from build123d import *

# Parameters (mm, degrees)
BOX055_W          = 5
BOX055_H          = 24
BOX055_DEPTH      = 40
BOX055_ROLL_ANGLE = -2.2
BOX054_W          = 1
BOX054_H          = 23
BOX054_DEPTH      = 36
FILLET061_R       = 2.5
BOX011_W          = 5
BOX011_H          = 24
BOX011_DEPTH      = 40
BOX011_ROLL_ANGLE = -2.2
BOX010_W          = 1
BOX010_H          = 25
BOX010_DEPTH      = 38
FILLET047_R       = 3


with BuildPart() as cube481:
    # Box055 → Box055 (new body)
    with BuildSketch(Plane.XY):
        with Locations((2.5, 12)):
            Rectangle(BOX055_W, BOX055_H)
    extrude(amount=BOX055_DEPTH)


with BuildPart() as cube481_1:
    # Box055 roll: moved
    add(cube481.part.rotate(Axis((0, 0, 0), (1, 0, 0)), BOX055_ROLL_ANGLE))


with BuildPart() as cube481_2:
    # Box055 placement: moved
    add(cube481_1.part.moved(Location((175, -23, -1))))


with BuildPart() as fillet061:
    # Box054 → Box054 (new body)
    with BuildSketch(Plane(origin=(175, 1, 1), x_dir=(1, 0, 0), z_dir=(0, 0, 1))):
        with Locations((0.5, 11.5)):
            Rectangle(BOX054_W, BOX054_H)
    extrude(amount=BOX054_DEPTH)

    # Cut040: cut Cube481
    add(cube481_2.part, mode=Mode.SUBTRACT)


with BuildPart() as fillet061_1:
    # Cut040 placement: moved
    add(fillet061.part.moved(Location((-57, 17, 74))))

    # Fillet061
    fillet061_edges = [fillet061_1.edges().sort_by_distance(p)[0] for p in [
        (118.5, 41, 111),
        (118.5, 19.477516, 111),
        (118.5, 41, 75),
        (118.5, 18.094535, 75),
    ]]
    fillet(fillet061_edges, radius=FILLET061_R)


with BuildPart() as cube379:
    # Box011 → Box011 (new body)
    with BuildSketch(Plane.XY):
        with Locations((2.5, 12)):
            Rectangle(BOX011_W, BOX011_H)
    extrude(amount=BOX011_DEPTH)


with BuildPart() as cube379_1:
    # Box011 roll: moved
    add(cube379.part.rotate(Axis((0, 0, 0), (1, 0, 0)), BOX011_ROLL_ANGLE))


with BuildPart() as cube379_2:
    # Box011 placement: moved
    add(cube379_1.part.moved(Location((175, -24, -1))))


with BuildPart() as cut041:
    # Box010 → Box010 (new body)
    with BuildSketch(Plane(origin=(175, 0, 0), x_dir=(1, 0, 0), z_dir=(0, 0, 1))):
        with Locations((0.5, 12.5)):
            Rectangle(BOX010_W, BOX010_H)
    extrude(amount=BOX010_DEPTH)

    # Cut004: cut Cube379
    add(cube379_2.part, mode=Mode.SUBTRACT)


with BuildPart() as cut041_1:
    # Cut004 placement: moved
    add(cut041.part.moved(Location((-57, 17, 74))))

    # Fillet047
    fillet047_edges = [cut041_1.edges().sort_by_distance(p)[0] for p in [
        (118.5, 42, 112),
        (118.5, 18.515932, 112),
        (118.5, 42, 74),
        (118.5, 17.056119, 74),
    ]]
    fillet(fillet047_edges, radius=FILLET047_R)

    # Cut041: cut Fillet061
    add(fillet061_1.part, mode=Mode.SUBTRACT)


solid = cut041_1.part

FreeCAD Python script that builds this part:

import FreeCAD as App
import Part
import Sketcher
Q = App.Units.Quantity


def edges_at(feature, points):
    """Names of the edges that pass closest to the given points."""
    edges = feature.Shape.Edges
    near = lambda p: min(range(len(edges)), key=lambda i: edges[i].distToShape(Part.Vertex(*p))[0])
    return sorted({f"Edge{near(p) + 1}" for p in points})


def add_polygon(sketch, points):
    """Adds a closed chain of lines whose ends are joined by coincident constraints."""
    first, n = sketch.GeometryCount, len(points)
    for a, b in zip(points, points[1:] + points[:1]):
        sketch.addGeometry(Part.LineSegment(App.Vector(*a, 0), App.Vector(*b, 0)), False)
    for i in range(n):
        sketch.addConstraint(Sketcher.Constraint("Coincident", first + i, 2, first + (i + 1) % n, 1))

doc = App.newDocument("Part")
body = doc.addObject("PartDesign::Body", "Body")

# Sketch on XY plane
sketch1 = doc.addObject("Sketcher::SketchObject", "Sketch")
body.addObject(sketch1)
sketch1.AttachmentSupport = (doc.XY_Plane, [""])
sketch1.MapMode = "FlatFace"
add_polygon(sketch1, [(0, 24), (0, 0), (5, 0), (5, 24)])  # lines 0-3
sketch1.addConstraint(Sketcher.Constraint("Vertical", 0))
sketch1.addConstraint(Sketcher.Constraint("Horizontal", 1))
sketch1.addConstraint(Sketcher.Constraint("Vertical", 2))
sketch1.addConstraint(Sketcher.Constraint("Horizontal", 3))
sketch1.addConstraint(Sketcher.Constraint("Coincident", 0, 2, -1, 1))
sketch1.addConstraint(Sketcher.Constraint("DistanceX", 1, 1, 1, 2, Q("5 mm")))
sketch1.addConstraint(Sketcher.Constraint("DistanceY", 0, 2, 0, 1, Q("24 mm")))
pad1 = doc.addObject("PartDesign::Pad", "Pad")
body.addObject(pad1)
pad1.Profile = sketch1
pad1.Length = 40
body2 = doc.addObject("PartDesign::Body", "Body001")
doc.recompute()

body.Placement = App.Placement(App.Vector(0, 0, 0), App.Rotation(App.Vector(1, 0, 0), 357.8))
boolean = doc.addObject("PartDesign::Boolean", "Boolean")
body2.addObject(boolean)
boolean.Type = "Fuse"
boolean.addObjects([body])
body3 = doc.addObject("PartDesign::Body", "Body002")
doc.recompute()

body2.Placement = App.Placement(App.Vector(175, -23, -1), App.Rotation(App.Vector(0, 0, 1), 0))
boolean2 = doc.addObject("PartDesign::Boolean", "Boolean001")
body3.addObject(boolean2)
boolean2.Type = "Fuse"
boolean2.addObjects([body2])
body4 = doc.addObject("PartDesign::Body", "Body003")

# Sketch on XY plane
sketch2 = doc.addObject("Sketcher::SketchObject", "Sketch001")
body4.addObject(sketch2)
sketch2.AttachmentSupport = (doc.getObject("XY_Plane003"), [""])
sketch2.MapMode = "FlatFace"
sketch2.AttachmentOffset = App.Placement(App.Vector(0, 0, 1), App.Rotation())
add_polygon(sketch2, [(175, 24), (175, 1), (176, 1), (176, 24)])  # lines 0-3
sketch2.addConstraint(Sketcher.Constraint("Vertical", 0))
sketch2.addConstraint(Sketcher.Constraint("Horizontal", 1))
sketch2.addConstraint(Sketcher.Constraint("Vertical", 2))
sketch2.addConstraint(Sketcher.Constraint("Horizontal", 3))
sketch2.addConstraint(Sketcher.Constraint("DistanceX", 1, 1, 1, 2, Q("1 mm")))
sketch2.addConstraint(Sketcher.Constraint("DistanceY", 0, 2, 0, 1, Q("23 mm")))
sketch2.addConstraint(Sketcher.Constraint("DistanceX", -1, 1, 0, 2, Q("175 mm")))
sketch2.addConstraint(Sketcher.Constraint("DistanceY", -1, 1, 0, 2, Q("1 mm")))
pad2 = doc.addObject("PartDesign::Pad", "Pad001")
body4.addObject(pad2)
pad2.Profile = sketch2
pad2.Length = 36
doc.recompute()

boolean3 = doc.addObject("PartDesign::Boolean", "Boolean002")
body4.addObject(boolean3)
boolean3.Type = "Cut"
boolean3.addObjects([body3])
body5 = doc.addObject("PartDesign::Body", "Body004")
doc.recompute()

body4.Placement = App.Placement(App.Vector(-57, 17, 74), App.Rotation(App.Vector(0, 0, 1), 0))
boolean4 = doc.addObject("PartDesign::Boolean", "Boolean003")
body5.addObject(boolean4)
boolean4.Type = "Fuse"
boolean4.addObjects([body4])
doc.recompute()

fillet = doc.addObject("PartDesign::Fillet", "Fillet")
body5.addObject(fillet)
fillet.Base = (boolean4, edges_at(boolean4, [
    (118.5, 41, 111),
    (118.5, 19.478, 111),
    (118.5, 41, 75),
    (118.5, 18.095, 75),
]))
fillet.Radius = 2.5
body6 = doc.addObject("PartDesign::Body", "Body005")

# Sketch on XY plane
sketch3 = doc.addObject("Sketcher::SketchObject", "Sketch002")
body6.addObject(sketch3)
sketch3.AttachmentSupport = (doc.getObject("XY_Plane005"), [""])
sketch3.MapMode = "FlatFace"
add_polygon(sketch3, [(0, 24), (0, 0), (5, 0), (5, 24)])  # lines 0-3
sketch3.addConstraint(Sketcher.Constraint("Vertical", 0))
sketch3.addConstraint(Sketcher.Constraint("Horizontal", 1))
sketch3.addConstraint(Sketcher.Constraint("Vertical", 2))
sketch3.addConstraint(Sketcher.Constraint("Horizontal", 3))
sketch3.addConstraint(Sketcher.Constraint("Coincident", 0, 2, -1, 1))
sketch3.addConstraint(Sketcher.Constraint("DistanceX", 1, 1, 1, 2, Q("5 mm")))
sketch3.addConstraint(Sketcher.Constraint("DistanceY", 0, 2, 0, 1, Q("24 mm")))
pad3 = doc.addObject("PartDesign::Pad", "Pad002")
body6.addObject(pad3)
pad3.Profile = sketch3
pad3.Length = 40
body7 = doc.addObject("PartDesign::Body", "Body006")
doc.recompute()

body6.Placement = App.Placement(App.Vector(0, 0, 0), App.Rotation(App.Vector(1, 0, 0), 357.8))
boolean5 = doc.addObject("PartDesign::Boolean", "Boolean004")
body7.addObject(boolean5)
boolean5.Type = "Fuse"
boolean5.addObjects([body6])
body8 = doc.addObject("PartDesign::Body", "Body007")
doc.recompute()

body7.Placement = App.Placement(App.Vector(175, -24, -1), App.Rotation(App.Vector(0, 0, 1), 0))
boolean6 = doc.addObject("PartDesign::Boolean", "Boolean005")
body8.addObject(boolean6)
boolean6.Type = "Fuse"
boolean6.addObjects([body7])
body9 = doc.addObject("PartDesign::Body", "Body008")

# Sketch on XY plane
sketch4 = doc.addObject("Sketcher::SketchObject", "Sketch003")
body9.addObject(sketch4)
sketch4.AttachmentSupport = (doc.getObject("XY_Plane008"), [""])
sketch4.MapMode = "FlatFace"
add_polygon(sketch4, [(175, 25), (175, 0), (176, 0), (176, 25)])  # lines 0-3
sketch4.addConstraint(Sketcher.Constraint("Vertical", 0))
sketch4.addConstraint(Sketcher.Constraint("Horizontal", 1))
sketch4.addConstraint(Sketcher.Constraint("Vertical", 2))
sketch4.addConstraint(Sketcher.Constraint("Horizontal", 3))
sketch4.addConstraint(Sketcher.Constraint("PointOnObject", 0, 2, -1))
sketch4.addConstraint(Sketcher.Constraint("DistanceX", 1, 1, 1, 2, Q("1 mm")))
sketch4.addConstraint(Sketcher.Constraint("DistanceY", 0, 2, 0, 1, Q("25 mm")))
sketch4.addConstraint(Sketcher.Constraint("DistanceX", -1, 1, 0, 2, Q("175 mm")))
pad4 = doc.addObject("PartDesign::Pad", "Pad003")
body9.addObject(pad4)
pad4.Profile = sketch4
pad4.Length = 38
doc.recompute()

boolean7 = doc.addObject("PartDesign::Boolean", "Boolean006")
body9.addObject(boolean7)
boolean7.Type = "Cut"
boolean7.addObjects([body8])
body10 = doc.addObject("PartDesign::Body", "Body009")
doc.recompute()

body9.Placement = App.Placement(App.Vector(-57, 17, 74), App.Rotation(App.Vector(0, 0, 1), 0))
boolean8 = doc.addObject("PartDesign::Boolean", "Boolean007")
body10.addObject(boolean8)
boolean8.Type = "Fuse"
boolean8.addObjects([body9])
doc.recompute()

fillet2 = doc.addObject("PartDesign::Fillet", "Fillet001")
body10.addObject(fillet2)
fillet2.Base = (boolean8, edges_at(boolean8, [
    (118.5, 42, 112),
    (118.5, 18.516, 112),
    (118.5, 42, 74),
    (118.5, 17.056, 74),
]))
fillet2.Radius = 3
doc.recompute()

boolean9 = doc.addObject("PartDesign::Boolean", "Boolean008")
body10.addObject(boolean9)
boolean9.Type = "Cut"
boolean9.addObjects([body5])

doc.recompute()
